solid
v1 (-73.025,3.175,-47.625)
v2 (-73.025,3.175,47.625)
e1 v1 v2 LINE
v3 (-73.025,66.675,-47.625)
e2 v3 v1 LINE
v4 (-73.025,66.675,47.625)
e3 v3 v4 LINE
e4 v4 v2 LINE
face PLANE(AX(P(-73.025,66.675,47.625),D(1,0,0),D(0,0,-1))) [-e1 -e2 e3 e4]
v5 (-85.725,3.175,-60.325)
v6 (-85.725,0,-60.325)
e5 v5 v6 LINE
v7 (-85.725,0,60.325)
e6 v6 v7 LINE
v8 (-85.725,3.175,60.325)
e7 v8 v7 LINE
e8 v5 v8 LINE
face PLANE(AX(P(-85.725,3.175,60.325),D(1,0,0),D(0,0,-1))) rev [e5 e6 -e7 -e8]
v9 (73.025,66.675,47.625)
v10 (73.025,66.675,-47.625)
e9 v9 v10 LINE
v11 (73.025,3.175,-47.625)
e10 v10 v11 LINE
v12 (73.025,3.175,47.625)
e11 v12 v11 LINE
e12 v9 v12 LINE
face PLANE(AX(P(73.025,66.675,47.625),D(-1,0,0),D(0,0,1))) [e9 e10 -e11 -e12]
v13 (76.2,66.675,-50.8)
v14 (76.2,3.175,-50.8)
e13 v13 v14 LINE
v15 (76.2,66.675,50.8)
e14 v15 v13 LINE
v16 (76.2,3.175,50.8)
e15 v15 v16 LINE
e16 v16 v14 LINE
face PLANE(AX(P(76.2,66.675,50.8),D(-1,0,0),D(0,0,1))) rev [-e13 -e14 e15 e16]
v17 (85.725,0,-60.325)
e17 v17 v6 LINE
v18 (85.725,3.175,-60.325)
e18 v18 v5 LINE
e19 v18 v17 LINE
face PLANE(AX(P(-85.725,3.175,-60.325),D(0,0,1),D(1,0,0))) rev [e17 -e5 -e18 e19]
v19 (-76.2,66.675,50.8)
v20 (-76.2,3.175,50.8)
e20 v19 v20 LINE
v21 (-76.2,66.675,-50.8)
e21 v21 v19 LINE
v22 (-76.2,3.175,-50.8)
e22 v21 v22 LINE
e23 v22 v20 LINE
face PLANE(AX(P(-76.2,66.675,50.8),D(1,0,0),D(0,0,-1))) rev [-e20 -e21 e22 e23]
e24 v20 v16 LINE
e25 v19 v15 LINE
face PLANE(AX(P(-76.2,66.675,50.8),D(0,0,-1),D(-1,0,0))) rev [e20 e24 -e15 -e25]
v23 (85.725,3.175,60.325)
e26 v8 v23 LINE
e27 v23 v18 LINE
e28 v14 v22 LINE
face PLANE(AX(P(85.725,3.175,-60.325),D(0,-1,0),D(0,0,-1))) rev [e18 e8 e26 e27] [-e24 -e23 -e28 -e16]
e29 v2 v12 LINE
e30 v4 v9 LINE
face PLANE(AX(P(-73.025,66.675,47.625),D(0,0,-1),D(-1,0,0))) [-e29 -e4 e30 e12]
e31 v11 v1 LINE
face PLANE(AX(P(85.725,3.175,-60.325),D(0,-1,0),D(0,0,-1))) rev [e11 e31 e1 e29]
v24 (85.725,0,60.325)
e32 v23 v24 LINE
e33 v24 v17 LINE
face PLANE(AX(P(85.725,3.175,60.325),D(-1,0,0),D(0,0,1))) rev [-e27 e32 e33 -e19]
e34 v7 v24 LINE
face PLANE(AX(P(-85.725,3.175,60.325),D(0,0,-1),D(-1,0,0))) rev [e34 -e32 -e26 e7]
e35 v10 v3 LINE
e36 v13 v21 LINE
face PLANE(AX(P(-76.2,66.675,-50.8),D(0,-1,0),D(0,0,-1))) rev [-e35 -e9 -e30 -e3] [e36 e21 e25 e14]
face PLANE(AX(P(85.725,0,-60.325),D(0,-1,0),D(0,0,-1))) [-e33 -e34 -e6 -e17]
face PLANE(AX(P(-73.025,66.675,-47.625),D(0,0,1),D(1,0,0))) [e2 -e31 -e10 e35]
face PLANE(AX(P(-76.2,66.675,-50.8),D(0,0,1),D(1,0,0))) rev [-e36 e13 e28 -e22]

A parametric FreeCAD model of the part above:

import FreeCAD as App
import Part
import Sketcher
Q = App.Units.Quantity

doc = App.newDocument("Part")
params = doc.addObject("Spreadsheet::Sheet", "Params")
for row, (alias, value) in enumerate([
    ("sketch1_width", "6.75 in"),
    ("sketch1_height", "4.75 in"),
    ("pad1_length", "0.125 in"),
    ("sketch2_width", "6 in"),
    ("sketch2_height", "4 in"),
    ("sketch2_width2", "5.75 in"),
    ("sketch2_height2", "3.75 in"),
    ("pad2_length", "2.5 in"),
], start=1):
    params.set(f"A{row}", alias)
    params.set(f"B{row}", "=" + value)
    params.setAlias(f"B{row}", alias)

body = doc.addObject("PartDesign::Body", "Body")

sketch1 = body.newObject("Sketcher::SketchObject", "Sketch")
sketch1.AttachmentSupport = (doc.getObject("XZ_Plane"), [""])
sketch1.MapMode = "FlatFace"
sketch1.addGeometry(Part.LineSegment(App.Vector(-86, -60, 0), App.Vector(-86, 60, 0)), False)
sketch1.addGeometry(Part.LineSegment(App.Vector(-86, 60, 0), App.Vector(86, 60, 0)), False)
sketch1.addGeometry(Part.LineSegment(App.Vector(86, 60, 0), App.Vector(86, -60, 0)), False)
sketch1.addGeometry(Part.LineSegment(App.Vector(86, -60, 0), App.Vector(-86, -60, 0)), False)
sketch1.addConstraint(Sketcher.Constraint("Coincident", 0, 2, 1, 1))
sketch1.addConstraint(Sketcher.Constraint("Coincident", 1, 2, 2, 1))
sketch1.addConstraint(Sketcher.Constraint("Coincident", 2, 2, 3, 1))
sketch1.addConstraint(Sketcher.Constraint("Coincident", 3, 2, 0, 1))
sketch1.addConstraint(Sketcher.Constraint("Vertical", 0))
sketch1.addConstraint(Sketcher.Constraint("Horizontal", 1))
sketch1.addConstraint(Sketcher.Constraint("Vertical", 2))
sketch1.addConstraint(Sketcher.Constraint("Horizontal", 3))
sketch1.addConstraint(Sketcher.Constraint("Symmetric", 0, 2, 2, 2, -1, 1))
sketch1.addConstraint(Sketcher.Constraint("DistanceX", 1, 1, 1, 2, Q("6.75 in")))
sketch1.addConstraint(Sketcher.Constraint("DistanceY", 0, 1, 0, 2, Q("4.75 in")))
sketch1.setExpression("Constraints[9]", "Params.sketch1_width")
sketch1.setExpression("Constraints[10]", "Params.sketch1_height")
pad1 = body.newObject("PartDesign::Pad", "Pad")
pad1.Profile = sketch1
pad1.setExpression("Length", "Params.pad1_length")
pad1.Reversed = True

sketch2 = body.newObject("Sketcher::SketchObject", "Sketch001")
sketch2.AttachmentSupport = (doc.getObject("XZ_Plane"), [""])
sketch2.MapMode = "FlatFace"
sketch2.AttachmentOffset = App.Placement(App.Vector(0, 0, -0.125 * 25.4), App.Rotation())
sketch2.addGeometry(Part.LineSegment(App.Vector(-76, -51, 0), App.Vector(-76, 51, 0)), False)
sketch2.addGeometry(Part.LineSegment(App.Vector(-76, 51, 0), App.Vector(76, 51, 0)), False)
sketch2.addGeometry(Part.LineSegment(App.Vector(76, 51, 0), App.Vector(76, -51, 0)), False)
sketch2.addGeometry(Part.LineSegment(App.Vector(76, -51, 0), App.Vector(-76, -51, 0)), False)
sketch2.addGeometry(Part.LineSegment(App.Vector(73, 48, 0), App.Vector(-73, 48, 0)), False)
sketch2.addGeometry(Part.LineSegment(App.Vector(-73, 48, 0), App.Vector(-73, -48, 0)), False)
sketch2.addGeometry(Part.LineSegment(App.Vector(-73, -48, 0), App.Vector(73, -48, 0)), False)
sketch2.addGeometry(Part.LineSegment(App.Vector(73, -48, 0), App.Vector(73, 48, 0)), False)
sketch2.addConstraint(Sketcher.Constraint("Coincident", 0, 2, 1, 1))
sketch2.addConstraint(Sketcher.Constraint("Coincident", 1, 2, 2, 1))
sketch2.addConstraint(Sketcher.Constraint("Coincident", 2, 2, 3, 1))
sketch2.addConstraint(Sketcher.Constraint("Coincident", 3, 2, 0, 1))
sketch2.addConstraint(Sketcher.Constraint("Coincident", 4, 2, 5, 1))
sketch2.addConstraint(Sketcher.Constraint("Coincident", 5, 2, 6, 1))
sketch2.addConstraint(Sketcher.Constraint("Coincident", 6, 2, 7, 1))
sketch2.addConstraint(Sketcher.Constraint("Coincident", 7, 2, 4, 1))
sketch2.addConstraint(Sketcher.Constraint("Vertical", 0))
sketch2.addConstraint(Sketcher.Constraint("Horizontal", 1))
sketch2.addConstraint(Sketcher.Constraint("Vertical", 2))
sketch2.addConstraint(Sketcher.Constraint("Horizontal", 3))
sketch2.addConstraint(Sketcher.Constraint("Horizontal", 4))
sketch2.addConstraint(Sketcher.Constraint("Vertical", 5))
sketch2.addConstraint(Sketcher.Constraint("Horizontal", 6))
sketch2.addConstraint(Sketcher.Constraint("Vertical", 7))
sketch2.addConstraint(Sketcher.Constraint("Symmetric", 0, 2, 2, 2, -1, 1))
sketch2.addConstraint(Sketcher.Constraint("Symmetric", 4, 2, 6, 2, -1, 1))
sketch2.addConstraint(Sketcher.Constraint("DistanceX", 1, 1, 1, 2, Q("6 in")))
sketch2.addConstraint(Sketcher.Constraint("DistanceY", 0, 1, 0, 2, Q("4 in")))
sketch2.addConstraint(Sketcher.Constraint("DistanceX", 4, 2, 4, 1, Q("5.75 in")))
sketch2.addConstraint(Sketcher.Constraint("DistanceY", 5, 2, 5, 1, Q("3.75 in")))
sketch2.setExpression("Constraints[18]", "Params.sketch2_width")
sketch2.setExpression("Constraints[19]", "Params.sketch2_height")
sketch2.setExpression("Constraints[20]", "Params.sketch2_width2")
sketch2.setExpression("Constraints[21]", "Params.sketch2_height2")
pad2 = body.newObject("PartDesign::Pad", "Pad001")
pad2.Profile = sketch2
pad2.setExpression("Length", "Params.pad2_length")
pad2.Reversed = True

doc.recompute()
